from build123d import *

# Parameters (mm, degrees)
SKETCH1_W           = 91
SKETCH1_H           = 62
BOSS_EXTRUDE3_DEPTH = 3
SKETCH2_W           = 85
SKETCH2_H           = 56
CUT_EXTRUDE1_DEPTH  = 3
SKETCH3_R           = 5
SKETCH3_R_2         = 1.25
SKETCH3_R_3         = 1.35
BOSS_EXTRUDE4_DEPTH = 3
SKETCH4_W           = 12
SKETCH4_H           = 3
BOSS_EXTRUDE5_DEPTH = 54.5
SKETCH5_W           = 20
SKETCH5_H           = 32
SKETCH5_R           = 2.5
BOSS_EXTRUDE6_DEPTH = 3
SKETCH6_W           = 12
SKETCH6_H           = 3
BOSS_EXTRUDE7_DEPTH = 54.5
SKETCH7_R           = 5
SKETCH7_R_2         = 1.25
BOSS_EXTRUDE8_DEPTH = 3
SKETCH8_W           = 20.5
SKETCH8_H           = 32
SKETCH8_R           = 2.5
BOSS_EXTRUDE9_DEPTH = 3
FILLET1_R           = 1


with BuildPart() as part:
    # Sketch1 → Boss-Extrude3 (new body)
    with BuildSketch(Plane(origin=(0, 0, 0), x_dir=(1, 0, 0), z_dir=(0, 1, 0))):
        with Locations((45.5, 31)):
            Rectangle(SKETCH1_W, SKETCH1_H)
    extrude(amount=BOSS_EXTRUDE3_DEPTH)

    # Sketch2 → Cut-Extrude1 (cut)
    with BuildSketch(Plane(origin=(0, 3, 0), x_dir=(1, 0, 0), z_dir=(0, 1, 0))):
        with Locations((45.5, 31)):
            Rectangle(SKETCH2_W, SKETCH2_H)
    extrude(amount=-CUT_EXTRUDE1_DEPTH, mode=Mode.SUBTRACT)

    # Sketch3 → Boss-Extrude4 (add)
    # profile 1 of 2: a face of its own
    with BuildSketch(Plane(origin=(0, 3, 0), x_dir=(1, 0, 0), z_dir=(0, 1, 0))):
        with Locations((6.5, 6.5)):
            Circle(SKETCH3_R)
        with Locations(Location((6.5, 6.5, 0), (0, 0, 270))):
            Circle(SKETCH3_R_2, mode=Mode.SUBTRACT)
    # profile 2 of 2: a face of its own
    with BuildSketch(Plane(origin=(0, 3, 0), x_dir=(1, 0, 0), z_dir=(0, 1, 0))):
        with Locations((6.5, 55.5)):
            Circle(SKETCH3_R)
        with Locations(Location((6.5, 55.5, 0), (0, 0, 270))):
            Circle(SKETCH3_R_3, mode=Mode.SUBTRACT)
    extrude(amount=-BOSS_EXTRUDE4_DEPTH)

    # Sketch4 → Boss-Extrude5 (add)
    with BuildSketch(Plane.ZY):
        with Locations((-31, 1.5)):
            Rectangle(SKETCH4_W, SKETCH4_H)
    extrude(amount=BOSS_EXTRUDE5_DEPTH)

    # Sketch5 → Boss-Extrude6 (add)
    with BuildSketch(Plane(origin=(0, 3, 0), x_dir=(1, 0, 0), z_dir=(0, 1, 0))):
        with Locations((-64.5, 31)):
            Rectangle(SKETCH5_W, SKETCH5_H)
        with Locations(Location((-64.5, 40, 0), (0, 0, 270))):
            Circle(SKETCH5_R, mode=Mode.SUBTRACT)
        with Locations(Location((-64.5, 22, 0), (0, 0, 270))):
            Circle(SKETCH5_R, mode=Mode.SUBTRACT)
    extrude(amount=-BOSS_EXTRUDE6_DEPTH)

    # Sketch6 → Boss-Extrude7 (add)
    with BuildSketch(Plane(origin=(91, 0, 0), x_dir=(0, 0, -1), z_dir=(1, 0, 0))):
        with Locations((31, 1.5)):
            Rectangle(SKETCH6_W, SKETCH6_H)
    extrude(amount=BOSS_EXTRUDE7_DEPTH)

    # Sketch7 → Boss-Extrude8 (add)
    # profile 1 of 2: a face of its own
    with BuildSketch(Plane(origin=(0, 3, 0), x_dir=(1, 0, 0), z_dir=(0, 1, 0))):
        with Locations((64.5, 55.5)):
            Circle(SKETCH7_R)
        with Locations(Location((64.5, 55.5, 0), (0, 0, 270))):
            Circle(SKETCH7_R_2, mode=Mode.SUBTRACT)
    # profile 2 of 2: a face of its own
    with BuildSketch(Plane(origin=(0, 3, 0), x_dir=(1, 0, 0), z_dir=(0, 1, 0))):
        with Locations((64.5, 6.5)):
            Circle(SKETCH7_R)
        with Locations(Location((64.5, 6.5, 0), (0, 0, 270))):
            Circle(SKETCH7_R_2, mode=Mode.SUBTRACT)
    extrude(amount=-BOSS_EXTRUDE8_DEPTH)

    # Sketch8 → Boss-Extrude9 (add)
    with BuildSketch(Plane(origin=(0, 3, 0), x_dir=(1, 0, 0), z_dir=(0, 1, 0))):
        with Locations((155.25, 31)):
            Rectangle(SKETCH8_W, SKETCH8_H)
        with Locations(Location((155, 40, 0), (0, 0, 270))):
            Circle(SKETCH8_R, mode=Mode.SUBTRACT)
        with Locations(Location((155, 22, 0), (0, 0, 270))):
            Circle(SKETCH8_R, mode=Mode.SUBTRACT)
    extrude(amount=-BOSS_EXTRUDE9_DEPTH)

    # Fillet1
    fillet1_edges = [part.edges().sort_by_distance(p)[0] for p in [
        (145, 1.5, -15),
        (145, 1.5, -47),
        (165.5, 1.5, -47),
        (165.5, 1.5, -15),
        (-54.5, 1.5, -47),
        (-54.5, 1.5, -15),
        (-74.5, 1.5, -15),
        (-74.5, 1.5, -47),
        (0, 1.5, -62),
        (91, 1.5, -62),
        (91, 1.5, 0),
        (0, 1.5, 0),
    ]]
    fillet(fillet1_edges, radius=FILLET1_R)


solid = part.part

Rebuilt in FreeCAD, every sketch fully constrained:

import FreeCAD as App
import Part
import Sketcher
Q = App.Units.Quantity


def edges_at(feature, points):
    """Names of the edges that pass closest to the given points."""
    edges = feature.Shape.Edges
    near = lambda p: min(range(len(edges)), key=lambda i: edges[i].distToShape(Part.Vertex(*p))[0])
    return sorted({f"Edge{near(p) + 1}" for p in points})

doc = App.newDocument("Part")
body = doc.addObject("PartDesign::Body", "Body")

# Sketch on XZ plane
sketch1 = body.newObject("Sketcher::SketchObject", "Sketch")
sketch1.AttachmentSupport = (doc.getObject("XZ_Plane"), [""])
sketch1.MapMode = "FlatFace"
sketch1.addGeometry([
    Part.LineSegment(App.Vector(0, -62, 0), App.Vector(0, 0, 0)),
    Part.LineSegment(App.Vector(0, 0, 0), App.Vector(91, 0, 0)),
    Part.LineSegment(App.Vector(91, 0, 0), App.Vector(91, -62, 0)),
    Part.LineSegment(App.Vector(91, -62, 0), App.Vector(0, -62, 0)),
], False)
sketch1.addConstraint([
    Sketcher.Constraint("Coincident", 0, 2, 1, 1),
    Sketcher.Constraint("Coincident", 1, 2, 2, 1),
    Sketcher.Constraint("Coincident", 2, 2, 3, 1),
    Sketcher.Constraint("Coincident", 3, 2, 0, 1),
    Sketcher.Constraint("Vertical", 0),
    Sketcher.Constraint("Horizontal", 1),
    Sketcher.Constraint("Vertical", 2),
    Sketcher.Constraint("Horizontal", 3),
    Sketcher.Constraint("Coincident", 0, 2, -1, 1),
    Sketcher.Constraint("DistanceX", 1, 1, 1, 2, Q("91 mm")),
    Sketcher.Constraint("DistanceY", 0, 1, 0, 2, Q("62 mm")),
])
pad1 = body.newObject("PartDesign::Pad", "Pad")
pad1.Profile = sketch1
pad1.Length = 3
pad1.Reversed = True

# Sketch on XZ plane
sketch2 = body.newObject("Sketcher::SketchObject", "Sketch001")
sketch2.AttachmentSupport = (doc.getObject("XZ_Plane"), [""])
sketch2.MapMode = "FlatFace"
sketch2.AttachmentOffset = App.Placement(App.Vector(0, 0, -3), App.Rotation())
sketch2.addGeometry([
    Part.LineSegment(App.Vector(3, -59, 0), App.Vector(3, -3, 0)),
    Part.LineSegment(App.Vector(3, -3, 0), App.Vector(88, -3, 0)),
    Part.LineSegment(App.Vector(88, -3, 0), App.Vector(88, -59, 0)),
    Part.LineSegment(App.Vector(88, -59, 0), App.Vector(3, -59, 0)),
], False)
sketch2.addConstraint([
    Sketcher.Constraint("Coincident", 0, 2, 1, 1),
    Sketcher.Constraint("Coincident", 1, 2, 2, 1),
    Sketcher.Constraint("Coincident", 2, 2, 3, 1),
    Sketcher.Constraint("Coincident", 3, 2, 0, 1),
    Sketcher.Constraint("Vertical", 0),
    Sketcher.Constraint("Horizontal", 1),
    Sketcher.Constraint("Vertical", 2),
    Sketcher.Constraint("Horizontal", 3),
    Sketcher.Constraint("DistanceX", 1, 1, 1, 2, Q("85 mm")),
    Sketcher.Constraint("DistanceY", 0, 1, 0, 2, Q("56 mm")),
    Sketcher.Constraint("DistanceX", -1, 1, 0, 2, Q("3 mm")),
    Sketcher.Constraint("DistanceY", 0, 2, -1, 1, Q("3 mm")),
])
pocket1 = body.newObject("PartDesign::Pocket", "Pocket")
pocket1.Profile = sketch2
pocket1.Length = 3
pocket1.Reversed = True

# Sketch on XZ plane
sketch3 = body.newObject("Sketcher::SketchObject", "Sketch002")
sketch3.AttachmentSupport = (doc.getObject("XZ_Plane"), [""])
sketch3.MapMode = "FlatFace"
sketch3.AttachmentOffset = App.Placement(App.Vector(0, 0, -3), App.Rotation())
sketch3.addGeometry([
    Part.Circle(App.Vector(6.5, -6.5, 0), App.Vector(0, 0, 1), 5),
    Part.Circle(App.Vector(6.5, -6.5, 0), App.Vector(0, 0, 1), 1.25),
    Part.Circle(App.Vector(6.5, -55.5, 0), App.Vector(0, 0, 1), 5),
    Part.Circle(App.Vector(6.5, -55.5, 0), App.Vector(0, 0, 1), 1.35),
], False)
sketch3.addConstraint([
    Sketcher.Constraint("Coincident", 1, 3, 0, 3),
    Sketcher.Constraint("Coincident", 3, 3, 2, 3),
    Sketcher.Constraint("Equal", 0, 2),
    Sketcher.Constraint("Vertical", 1, 3, 2, 3),
    Sketcher.Constraint("Diameter", 0, Q("10 mm")),
    Sketcher.Constraint("Diameter", 1, Q("2.5 mm")),
    Sketcher.Constraint("Diameter", 3, Q("2.7 mm")),
    Sketcher.Constraint("DistanceY", 2, 3, 0, 3, Q("49 mm")),
    Sketcher.Constraint("DistanceX", -1, 1, 0, 3, Q("6.5 mm")),
    Sketcher.Constraint("DistanceY", 0, 3, -1, 1, Q("6.5 mm")),
])
pad2 = body.newObject("PartDesign::Pad", "Pad001")
pad2.Profile = sketch3
pad2.Length = 3

# Sketch on YZ plane
sketch4 = body.newObject("Sketcher::SketchObject", "Sketch003")
sketch4.AttachmentSupport = (doc.getObject("YZ_Plane"), [""])
sketch4.MapMode = "FlatFace"
sketch4.addGeometry([
    Part.LineSegment(App.Vector(3, -37, 0), App.Vector(0, -37, 0)),
    Part.LineSegment(App.Vector(0, -37, 0), App.Vector(0, -25, 0)),
    Part.LineSegment(App.Vector(0, -25, 0), App.Vector(3, -25, 0)),
    Part.LineSegment(App.Vector(3, -25, 0), App.Vector(3, -37, 0)),
], False)
sketch4.addConstraint([
    Sketcher.Constraint("Coincident", 0, 2, 1, 1),
    Sketcher.Constraint("Coincident", 1, 2, 2, 1),
    Sketcher.Constraint("Coincident", 2, 2, 3, 1),
    Sketcher.Constraint("Coincident", 3, 2, 0, 1),
    Sketcher.Constraint("Horizontal", 0),
    Sketcher.Constraint("Vertical", 1),
    Sketcher.Constraint("Horizontal", 2),
    Sketcher.Constraint("Vertical", 3),
    Sketcher.Constraint("PointOnObject", 0, 2, -2),
    Sketcher.Constraint("DistanceX", 0, 2, 0, 1, Q("3 mm")),
    Sketcher.Constraint("DistanceY", 1, 1, 1, 2, Q("12 mm")),
    Sketcher.Constraint("DistanceY", 0, 2, -1, 1, Q("37 mm")),
])
pad3 = body.newObject("PartDesign::Pad", "Pad002")
pad3.Profile = sketch4
pad3.Length = 54.5
pad3.Reversed = True

# Sketch on XZ plane
sketch5 = body.newObject("Sketcher::SketchObject", "Sketch004")
sketch5.AttachmentSupport = (doc.getObject("XZ_Plane"), [""])
sketch5.MapMode = "FlatFace"
sketch5.AttachmentOffset = App.Placement(App.Vector(0, 0, -3), App.Rotation())
sketch5.addGeometry([
    Part.LineSegment(App.Vector(-74.5, -47, 0), App.Vector(-74.5, -15, 0)),  # 0
    Part.LineSegment(App.Vector(-74.5, -15, 0), App.Vector(-54.5, -15, 0)),  # 1
    Part.LineSegment(App.Vector(-54.5, -15, 0), App.Vector(-54.5, -47, 0)),  # 2
    Part.LineSegment(App.Vector(-54.5, -47, 0), App.Vector(-74.5, -47, 0)),  # 3
    Part.Circle(App.Vector(-64.5, -22, 0), App.Vector(0, 0, 1), 2.5),  # 4
    Part.Circle(App.Vector(-64.5, -40, 0), App.Vector(0, 0, 1), 2.5),  # 5
], False)
sketch5.addConstraint([
    Sketcher.Constraint("Coincident", 0, 2, 1, 1),
    Sketcher.Constraint("Coincident", 1, 2, 2, 1),
    Sketcher.Constraint("Coincident", 2, 2, 3, 1),
    Sketcher.Constraint("Coincident", 3, 2, 0, 1),
    Sketcher.Constraint("Vertical", 0),
    Sketcher.Constraint("Horizontal", 1),
    Sketcher.Constraint("Vertical", 2),
    Sketcher.Constraint("Horizontal", 3),
    Sketcher.Constraint("Equal", 4, 5),
    Sketcher.Constraint("Vertical", 4, 3, 5, 3),
    Sketcher.Constraint("Diameter", 4, Q("5 mm")),
    Sketcher.Constraint("DistanceX", 1, 1, 1, 2, Q("20 mm")),
    Sketcher.Constraint("DistanceY", 0, 1, 0, 2, Q("32 mm")),
    Sketcher.Constraint("DistanceY", 4, 3, -1, 1, Q("22 mm")),
    Sketcher.Constraint("DistanceY", 5, 3, -1, 1, Q("40 mm")),
    Sketcher.Constraint("DistanceY", 0, 2, -1, 1, Q("15 mm")),
    Sketcher.Constraint("DistanceX", 0, 2, 4, 3, Q("10 mm")),
    Sketcher.Constraint("DistanceX", 4, 3, -1, 1, Q("64.5 mm")),
])
pad4 = body.newObject("PartDesign::Pad", "Pad003")
pad4.Profile = sketch5
pad4.Length = 3

# Sketch on YZ plane
sketch6 = body.newObject("Sketcher::SketchObject", "Sketch005")
sketch6.AttachmentSupport = (doc.getObject("YZ_Plane"), [""])
sketch6.MapMode = "FlatFace"
sketch6.AttachmentOffset = App.Placement(App.Vector(0, 0, 91), App.Rotation())
sketch6.addGeometry([
    Part.LineSegment(App.Vector(3, -25, 0), App.Vector(0, -25, 0)),
    Part.LineSegment(App.Vector(0, -25, 0), App.Vector(0, -37, 0)),
    Part.LineSegment(App.Vector(0, -37, 0), App.Vector(3, -37, 0)),
    Part.LineSegment(App.Vector(3, -37, 0), App.Vector(3, -25, 0)),
], False)
sketch6.addConstraint([
    Sketcher.Constraint("Coincident", 0, 2, 1, 1),
    Sketcher.Constraint("Coincident", 1, 2, 2, 1),
    Sketcher.Constraint("Coincident", 2, 2, 3, 1),
    Sketcher.Constraint("Coincident", 3, 2, 0, 1),
    Sketcher.Constraint("Horizontal", 0),
    Sketcher.Constraint("Vertical", 1),
    Sketcher.Constraint("Horizontal", 2),
    Sketcher.Constraint("Vertical", 3),
    Sketcher.Constraint("PointOnObject", 0, 2, -2),
    Sketcher.Constraint("DistanceX", 0, 2, 0, 1, Q("3 mm")),
    Sketcher.Constraint("DistanceY", 1, 2, 1, 1, Q("12 mm")),
    Sketcher.Constraint("DistanceY", 0, 2, -1, 1, Q("25 mm")),
])
pad5 = body.newObject("PartDesign::Pad", "Pad004")
pad5.Profile = sketch6
pad5.Length = 54.5

# Sketch on XZ plane
sketch7 = body.newObject("Sketcher::SketchObject", "Sketch006")
sketch7.AttachmentSupport = (doc.getObject("XZ_Plane"), [""])
sketch7.MapMode = "FlatFace"
sketch7.AttachmentOffset = App.Placement(App.Vector(0, 0, -3), App.Rotation())
sketch7.addGeometry([
    Part.Circle(App.Vector(64.5, -55.5, 0), App.Vector(0, 0, 1), 5),
    Part.Circle(App.Vector(64.5, -55.5, 0), App.Vector(0, 0, 1), 1.25),
    Part.Circle(App.Vector(64.5, -6.5, 0), App.Vector(0, 0, 1), 5),
    Part.Circle(App.Vector(64.5, -6.5, 0), App.Vector(0, 0, 1), 1.25),
], False)
sketch7.addConstraint([
    Sketcher.Constraint("Coincident", 1, 3, 0, 3),
    Sketcher.Constraint("Coincident", 3, 3, 2, 3),
    Sketcher.Constraint("Equal", 0, 2),
    Sketcher.Constraint("Equal", 1, 3),
    Sketcher.Constraint("Vertical", 1, 3, 2, 3),
    Sketcher.Constraint("Diameter", 0, Q("10 mm")),
    Sketcher.Constraint("Diameter", 1, Q("2.5 mm")),
    Sketcher.Constraint("DistanceY", 0, 3, 2, 3, Q("49 mm")),
    Sketcher.Constraint("DistanceX", -1, 1, 0, 3, Q("64.5 mm")),
    Sketcher.Constraint("DistanceY", 0, 3, -1, 1, Q("55.5 mm")),
])
pad6 = body.newObject("PartDesign::Pad", "Pad005")
pad6.Profile = sketch7
pad6.Length = 3

# Sketch on XZ plane
sketch8 = body.newObject("Sketcher::SketchObject", "Sketch007")
sketch8.AttachmentSupport = (doc.getObject("XZ_Plane"), [""])
sketch8.MapMode = "FlatFace"
sketch8.AttachmentOffset = App.Placement(App.Vector(0, 0, -3), App.Rotation())
sketch8.addGeometry([
    Part.LineSegment(App.Vector(145, -47, 0), App.Vector(145, -15, 0)),  # 0
    Part.LineSegment(App.Vector(145, -15, 0), App.Vector(165.5, -15, 0)),  # 1
    Part.LineSegment(App.Vector(165.5, -15, 0), App.Vector(165.5, -47, 0)),  # 2
    Part.LineSegment(App.Vector(165.5, -47, 0), App.Vector(145, -47, 0)),  # 3
    Part.Circle(App.Vector(155, -22, 0), App.Vector(0, 0, 1), 2.5),  # 4
    Part.Circle(App.Vector(155, -40, 0), App.Vector(0, 0, 1), 2.5),  # 5
], False)
sketch8.addConstraint([
    Sketcher.Constraint("Coincident", 0, 2, 1, 1),
    Sketcher.Constraint("Coincident", 1, 2, 2, 1),
    Sketcher.Constraint("Coincident", 2, 2, 3, 1),
    Sketcher.Constraint("Coincident", 3, 2, 0, 1),
    Sketcher.Constraint("Vertical", 0),
    Sketcher.Constraint("Horizontal", 1),
    Sketcher.Constraint("Vertical", 2),
    Sketcher.Constraint("Horizontal", 3),
    Sketcher.Constraint("Equal", 4, 5),
    Sketcher.Constraint("Vertical", 4, 3, 5, 3),
    Sketcher.Constraint("Diameter", 4, Q("5 mm")),
    Sketcher.Constraint("DistanceY", 0, 1, 0, 2, Q("32 mm")),
    Sketcher.Constraint("DistanceX", 1, 1, 1, 2, Q("20.5 mm")),
    Sketcher.Constraint("DistanceX", -1, 1, 4, 3, Q("155 mm")),
    Sketcher.Constraint("DistanceY", 4, 3, -1, 1, Q("22 mm")),
    Sketcher.Constraint("DistanceY", 5, 3, -1, 1, Q("40 mm")),
    Sketcher.Constraint("DistanceX", -1, 1, 0, 2, Q("145 mm")),
    Sketcher.Constraint("DistanceY", 0, 2, -1, 1, Q("15 mm")),
])
pad7 = body.newObject("PartDesign::Pad", "Pad006")
pad7.Profile = sketch8
pad7.Length = 3
doc.recompute()

fillet = body.newObject("PartDesign::Fillet", "Fillet")
fillet.Base = (pad7, edges_at(pad7, [
    (145, 1.5, -15),
    (145, 1.5, -47),
    (165.5, 1.5, -47),
    (165.5, 1.5, -15),
    (-54.5, 1.5, -47),
    (-54.5, 1.5, -15),
    (-74.5, 1.5, -15),
    (-74.5, 1.5, -47),
    (0, 1.5, -62),
    (91, 1.5, -62),
    (91, 1.5, 0),
    (0, 1.5, 0),
]))
fillet.Radius = 1

doc.recompute()
